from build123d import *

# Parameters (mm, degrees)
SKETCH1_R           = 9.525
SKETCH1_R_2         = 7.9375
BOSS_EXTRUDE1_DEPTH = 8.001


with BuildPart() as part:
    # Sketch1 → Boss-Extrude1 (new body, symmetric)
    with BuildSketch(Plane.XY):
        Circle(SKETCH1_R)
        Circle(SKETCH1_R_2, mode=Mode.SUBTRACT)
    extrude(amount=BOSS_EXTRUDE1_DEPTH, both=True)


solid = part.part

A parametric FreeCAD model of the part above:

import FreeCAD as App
import Part
import Sketcher

V = App.Vector
Q = App.Units.Quantity

doc = App.newDocument("Part")
body = doc.addObject("PartDesign::Body", "Body")

sketch1 = body.newObject("Sketcher::SketchObject", "Sketch")
sketch1.AttachmentSupport = (doc.getObject("XY_Plane"), [""])
sketch1.MapMode = "FlatFace"
sketch1.addGeometry([
    Part.Circle(V(0, 0, 0), V(0, 0, 1), 10),
    Part.Circle(V(0, 0, 0), V(0, 0, 1), 8),
], False)
sketch1.addConstraint([
    Sketcher.Constraint("Coincident", 0, 3, -1, 1),
    Sketcher.Constraint("Coincident", 1, 3, -1, 1),
    Sketcher.Constraint("Diameter", 0, Q("0.75 in")),
    Sketcher.Constraint("Diameter", 1, Q("0.625 in")),
])
pad1 = body.newObject("PartDesign::Pad", "Pad")
pad1.Profile = sketch1
pad1.Length = Q("0.63 in")
pad1.Midplane = True

doc.recompute()
